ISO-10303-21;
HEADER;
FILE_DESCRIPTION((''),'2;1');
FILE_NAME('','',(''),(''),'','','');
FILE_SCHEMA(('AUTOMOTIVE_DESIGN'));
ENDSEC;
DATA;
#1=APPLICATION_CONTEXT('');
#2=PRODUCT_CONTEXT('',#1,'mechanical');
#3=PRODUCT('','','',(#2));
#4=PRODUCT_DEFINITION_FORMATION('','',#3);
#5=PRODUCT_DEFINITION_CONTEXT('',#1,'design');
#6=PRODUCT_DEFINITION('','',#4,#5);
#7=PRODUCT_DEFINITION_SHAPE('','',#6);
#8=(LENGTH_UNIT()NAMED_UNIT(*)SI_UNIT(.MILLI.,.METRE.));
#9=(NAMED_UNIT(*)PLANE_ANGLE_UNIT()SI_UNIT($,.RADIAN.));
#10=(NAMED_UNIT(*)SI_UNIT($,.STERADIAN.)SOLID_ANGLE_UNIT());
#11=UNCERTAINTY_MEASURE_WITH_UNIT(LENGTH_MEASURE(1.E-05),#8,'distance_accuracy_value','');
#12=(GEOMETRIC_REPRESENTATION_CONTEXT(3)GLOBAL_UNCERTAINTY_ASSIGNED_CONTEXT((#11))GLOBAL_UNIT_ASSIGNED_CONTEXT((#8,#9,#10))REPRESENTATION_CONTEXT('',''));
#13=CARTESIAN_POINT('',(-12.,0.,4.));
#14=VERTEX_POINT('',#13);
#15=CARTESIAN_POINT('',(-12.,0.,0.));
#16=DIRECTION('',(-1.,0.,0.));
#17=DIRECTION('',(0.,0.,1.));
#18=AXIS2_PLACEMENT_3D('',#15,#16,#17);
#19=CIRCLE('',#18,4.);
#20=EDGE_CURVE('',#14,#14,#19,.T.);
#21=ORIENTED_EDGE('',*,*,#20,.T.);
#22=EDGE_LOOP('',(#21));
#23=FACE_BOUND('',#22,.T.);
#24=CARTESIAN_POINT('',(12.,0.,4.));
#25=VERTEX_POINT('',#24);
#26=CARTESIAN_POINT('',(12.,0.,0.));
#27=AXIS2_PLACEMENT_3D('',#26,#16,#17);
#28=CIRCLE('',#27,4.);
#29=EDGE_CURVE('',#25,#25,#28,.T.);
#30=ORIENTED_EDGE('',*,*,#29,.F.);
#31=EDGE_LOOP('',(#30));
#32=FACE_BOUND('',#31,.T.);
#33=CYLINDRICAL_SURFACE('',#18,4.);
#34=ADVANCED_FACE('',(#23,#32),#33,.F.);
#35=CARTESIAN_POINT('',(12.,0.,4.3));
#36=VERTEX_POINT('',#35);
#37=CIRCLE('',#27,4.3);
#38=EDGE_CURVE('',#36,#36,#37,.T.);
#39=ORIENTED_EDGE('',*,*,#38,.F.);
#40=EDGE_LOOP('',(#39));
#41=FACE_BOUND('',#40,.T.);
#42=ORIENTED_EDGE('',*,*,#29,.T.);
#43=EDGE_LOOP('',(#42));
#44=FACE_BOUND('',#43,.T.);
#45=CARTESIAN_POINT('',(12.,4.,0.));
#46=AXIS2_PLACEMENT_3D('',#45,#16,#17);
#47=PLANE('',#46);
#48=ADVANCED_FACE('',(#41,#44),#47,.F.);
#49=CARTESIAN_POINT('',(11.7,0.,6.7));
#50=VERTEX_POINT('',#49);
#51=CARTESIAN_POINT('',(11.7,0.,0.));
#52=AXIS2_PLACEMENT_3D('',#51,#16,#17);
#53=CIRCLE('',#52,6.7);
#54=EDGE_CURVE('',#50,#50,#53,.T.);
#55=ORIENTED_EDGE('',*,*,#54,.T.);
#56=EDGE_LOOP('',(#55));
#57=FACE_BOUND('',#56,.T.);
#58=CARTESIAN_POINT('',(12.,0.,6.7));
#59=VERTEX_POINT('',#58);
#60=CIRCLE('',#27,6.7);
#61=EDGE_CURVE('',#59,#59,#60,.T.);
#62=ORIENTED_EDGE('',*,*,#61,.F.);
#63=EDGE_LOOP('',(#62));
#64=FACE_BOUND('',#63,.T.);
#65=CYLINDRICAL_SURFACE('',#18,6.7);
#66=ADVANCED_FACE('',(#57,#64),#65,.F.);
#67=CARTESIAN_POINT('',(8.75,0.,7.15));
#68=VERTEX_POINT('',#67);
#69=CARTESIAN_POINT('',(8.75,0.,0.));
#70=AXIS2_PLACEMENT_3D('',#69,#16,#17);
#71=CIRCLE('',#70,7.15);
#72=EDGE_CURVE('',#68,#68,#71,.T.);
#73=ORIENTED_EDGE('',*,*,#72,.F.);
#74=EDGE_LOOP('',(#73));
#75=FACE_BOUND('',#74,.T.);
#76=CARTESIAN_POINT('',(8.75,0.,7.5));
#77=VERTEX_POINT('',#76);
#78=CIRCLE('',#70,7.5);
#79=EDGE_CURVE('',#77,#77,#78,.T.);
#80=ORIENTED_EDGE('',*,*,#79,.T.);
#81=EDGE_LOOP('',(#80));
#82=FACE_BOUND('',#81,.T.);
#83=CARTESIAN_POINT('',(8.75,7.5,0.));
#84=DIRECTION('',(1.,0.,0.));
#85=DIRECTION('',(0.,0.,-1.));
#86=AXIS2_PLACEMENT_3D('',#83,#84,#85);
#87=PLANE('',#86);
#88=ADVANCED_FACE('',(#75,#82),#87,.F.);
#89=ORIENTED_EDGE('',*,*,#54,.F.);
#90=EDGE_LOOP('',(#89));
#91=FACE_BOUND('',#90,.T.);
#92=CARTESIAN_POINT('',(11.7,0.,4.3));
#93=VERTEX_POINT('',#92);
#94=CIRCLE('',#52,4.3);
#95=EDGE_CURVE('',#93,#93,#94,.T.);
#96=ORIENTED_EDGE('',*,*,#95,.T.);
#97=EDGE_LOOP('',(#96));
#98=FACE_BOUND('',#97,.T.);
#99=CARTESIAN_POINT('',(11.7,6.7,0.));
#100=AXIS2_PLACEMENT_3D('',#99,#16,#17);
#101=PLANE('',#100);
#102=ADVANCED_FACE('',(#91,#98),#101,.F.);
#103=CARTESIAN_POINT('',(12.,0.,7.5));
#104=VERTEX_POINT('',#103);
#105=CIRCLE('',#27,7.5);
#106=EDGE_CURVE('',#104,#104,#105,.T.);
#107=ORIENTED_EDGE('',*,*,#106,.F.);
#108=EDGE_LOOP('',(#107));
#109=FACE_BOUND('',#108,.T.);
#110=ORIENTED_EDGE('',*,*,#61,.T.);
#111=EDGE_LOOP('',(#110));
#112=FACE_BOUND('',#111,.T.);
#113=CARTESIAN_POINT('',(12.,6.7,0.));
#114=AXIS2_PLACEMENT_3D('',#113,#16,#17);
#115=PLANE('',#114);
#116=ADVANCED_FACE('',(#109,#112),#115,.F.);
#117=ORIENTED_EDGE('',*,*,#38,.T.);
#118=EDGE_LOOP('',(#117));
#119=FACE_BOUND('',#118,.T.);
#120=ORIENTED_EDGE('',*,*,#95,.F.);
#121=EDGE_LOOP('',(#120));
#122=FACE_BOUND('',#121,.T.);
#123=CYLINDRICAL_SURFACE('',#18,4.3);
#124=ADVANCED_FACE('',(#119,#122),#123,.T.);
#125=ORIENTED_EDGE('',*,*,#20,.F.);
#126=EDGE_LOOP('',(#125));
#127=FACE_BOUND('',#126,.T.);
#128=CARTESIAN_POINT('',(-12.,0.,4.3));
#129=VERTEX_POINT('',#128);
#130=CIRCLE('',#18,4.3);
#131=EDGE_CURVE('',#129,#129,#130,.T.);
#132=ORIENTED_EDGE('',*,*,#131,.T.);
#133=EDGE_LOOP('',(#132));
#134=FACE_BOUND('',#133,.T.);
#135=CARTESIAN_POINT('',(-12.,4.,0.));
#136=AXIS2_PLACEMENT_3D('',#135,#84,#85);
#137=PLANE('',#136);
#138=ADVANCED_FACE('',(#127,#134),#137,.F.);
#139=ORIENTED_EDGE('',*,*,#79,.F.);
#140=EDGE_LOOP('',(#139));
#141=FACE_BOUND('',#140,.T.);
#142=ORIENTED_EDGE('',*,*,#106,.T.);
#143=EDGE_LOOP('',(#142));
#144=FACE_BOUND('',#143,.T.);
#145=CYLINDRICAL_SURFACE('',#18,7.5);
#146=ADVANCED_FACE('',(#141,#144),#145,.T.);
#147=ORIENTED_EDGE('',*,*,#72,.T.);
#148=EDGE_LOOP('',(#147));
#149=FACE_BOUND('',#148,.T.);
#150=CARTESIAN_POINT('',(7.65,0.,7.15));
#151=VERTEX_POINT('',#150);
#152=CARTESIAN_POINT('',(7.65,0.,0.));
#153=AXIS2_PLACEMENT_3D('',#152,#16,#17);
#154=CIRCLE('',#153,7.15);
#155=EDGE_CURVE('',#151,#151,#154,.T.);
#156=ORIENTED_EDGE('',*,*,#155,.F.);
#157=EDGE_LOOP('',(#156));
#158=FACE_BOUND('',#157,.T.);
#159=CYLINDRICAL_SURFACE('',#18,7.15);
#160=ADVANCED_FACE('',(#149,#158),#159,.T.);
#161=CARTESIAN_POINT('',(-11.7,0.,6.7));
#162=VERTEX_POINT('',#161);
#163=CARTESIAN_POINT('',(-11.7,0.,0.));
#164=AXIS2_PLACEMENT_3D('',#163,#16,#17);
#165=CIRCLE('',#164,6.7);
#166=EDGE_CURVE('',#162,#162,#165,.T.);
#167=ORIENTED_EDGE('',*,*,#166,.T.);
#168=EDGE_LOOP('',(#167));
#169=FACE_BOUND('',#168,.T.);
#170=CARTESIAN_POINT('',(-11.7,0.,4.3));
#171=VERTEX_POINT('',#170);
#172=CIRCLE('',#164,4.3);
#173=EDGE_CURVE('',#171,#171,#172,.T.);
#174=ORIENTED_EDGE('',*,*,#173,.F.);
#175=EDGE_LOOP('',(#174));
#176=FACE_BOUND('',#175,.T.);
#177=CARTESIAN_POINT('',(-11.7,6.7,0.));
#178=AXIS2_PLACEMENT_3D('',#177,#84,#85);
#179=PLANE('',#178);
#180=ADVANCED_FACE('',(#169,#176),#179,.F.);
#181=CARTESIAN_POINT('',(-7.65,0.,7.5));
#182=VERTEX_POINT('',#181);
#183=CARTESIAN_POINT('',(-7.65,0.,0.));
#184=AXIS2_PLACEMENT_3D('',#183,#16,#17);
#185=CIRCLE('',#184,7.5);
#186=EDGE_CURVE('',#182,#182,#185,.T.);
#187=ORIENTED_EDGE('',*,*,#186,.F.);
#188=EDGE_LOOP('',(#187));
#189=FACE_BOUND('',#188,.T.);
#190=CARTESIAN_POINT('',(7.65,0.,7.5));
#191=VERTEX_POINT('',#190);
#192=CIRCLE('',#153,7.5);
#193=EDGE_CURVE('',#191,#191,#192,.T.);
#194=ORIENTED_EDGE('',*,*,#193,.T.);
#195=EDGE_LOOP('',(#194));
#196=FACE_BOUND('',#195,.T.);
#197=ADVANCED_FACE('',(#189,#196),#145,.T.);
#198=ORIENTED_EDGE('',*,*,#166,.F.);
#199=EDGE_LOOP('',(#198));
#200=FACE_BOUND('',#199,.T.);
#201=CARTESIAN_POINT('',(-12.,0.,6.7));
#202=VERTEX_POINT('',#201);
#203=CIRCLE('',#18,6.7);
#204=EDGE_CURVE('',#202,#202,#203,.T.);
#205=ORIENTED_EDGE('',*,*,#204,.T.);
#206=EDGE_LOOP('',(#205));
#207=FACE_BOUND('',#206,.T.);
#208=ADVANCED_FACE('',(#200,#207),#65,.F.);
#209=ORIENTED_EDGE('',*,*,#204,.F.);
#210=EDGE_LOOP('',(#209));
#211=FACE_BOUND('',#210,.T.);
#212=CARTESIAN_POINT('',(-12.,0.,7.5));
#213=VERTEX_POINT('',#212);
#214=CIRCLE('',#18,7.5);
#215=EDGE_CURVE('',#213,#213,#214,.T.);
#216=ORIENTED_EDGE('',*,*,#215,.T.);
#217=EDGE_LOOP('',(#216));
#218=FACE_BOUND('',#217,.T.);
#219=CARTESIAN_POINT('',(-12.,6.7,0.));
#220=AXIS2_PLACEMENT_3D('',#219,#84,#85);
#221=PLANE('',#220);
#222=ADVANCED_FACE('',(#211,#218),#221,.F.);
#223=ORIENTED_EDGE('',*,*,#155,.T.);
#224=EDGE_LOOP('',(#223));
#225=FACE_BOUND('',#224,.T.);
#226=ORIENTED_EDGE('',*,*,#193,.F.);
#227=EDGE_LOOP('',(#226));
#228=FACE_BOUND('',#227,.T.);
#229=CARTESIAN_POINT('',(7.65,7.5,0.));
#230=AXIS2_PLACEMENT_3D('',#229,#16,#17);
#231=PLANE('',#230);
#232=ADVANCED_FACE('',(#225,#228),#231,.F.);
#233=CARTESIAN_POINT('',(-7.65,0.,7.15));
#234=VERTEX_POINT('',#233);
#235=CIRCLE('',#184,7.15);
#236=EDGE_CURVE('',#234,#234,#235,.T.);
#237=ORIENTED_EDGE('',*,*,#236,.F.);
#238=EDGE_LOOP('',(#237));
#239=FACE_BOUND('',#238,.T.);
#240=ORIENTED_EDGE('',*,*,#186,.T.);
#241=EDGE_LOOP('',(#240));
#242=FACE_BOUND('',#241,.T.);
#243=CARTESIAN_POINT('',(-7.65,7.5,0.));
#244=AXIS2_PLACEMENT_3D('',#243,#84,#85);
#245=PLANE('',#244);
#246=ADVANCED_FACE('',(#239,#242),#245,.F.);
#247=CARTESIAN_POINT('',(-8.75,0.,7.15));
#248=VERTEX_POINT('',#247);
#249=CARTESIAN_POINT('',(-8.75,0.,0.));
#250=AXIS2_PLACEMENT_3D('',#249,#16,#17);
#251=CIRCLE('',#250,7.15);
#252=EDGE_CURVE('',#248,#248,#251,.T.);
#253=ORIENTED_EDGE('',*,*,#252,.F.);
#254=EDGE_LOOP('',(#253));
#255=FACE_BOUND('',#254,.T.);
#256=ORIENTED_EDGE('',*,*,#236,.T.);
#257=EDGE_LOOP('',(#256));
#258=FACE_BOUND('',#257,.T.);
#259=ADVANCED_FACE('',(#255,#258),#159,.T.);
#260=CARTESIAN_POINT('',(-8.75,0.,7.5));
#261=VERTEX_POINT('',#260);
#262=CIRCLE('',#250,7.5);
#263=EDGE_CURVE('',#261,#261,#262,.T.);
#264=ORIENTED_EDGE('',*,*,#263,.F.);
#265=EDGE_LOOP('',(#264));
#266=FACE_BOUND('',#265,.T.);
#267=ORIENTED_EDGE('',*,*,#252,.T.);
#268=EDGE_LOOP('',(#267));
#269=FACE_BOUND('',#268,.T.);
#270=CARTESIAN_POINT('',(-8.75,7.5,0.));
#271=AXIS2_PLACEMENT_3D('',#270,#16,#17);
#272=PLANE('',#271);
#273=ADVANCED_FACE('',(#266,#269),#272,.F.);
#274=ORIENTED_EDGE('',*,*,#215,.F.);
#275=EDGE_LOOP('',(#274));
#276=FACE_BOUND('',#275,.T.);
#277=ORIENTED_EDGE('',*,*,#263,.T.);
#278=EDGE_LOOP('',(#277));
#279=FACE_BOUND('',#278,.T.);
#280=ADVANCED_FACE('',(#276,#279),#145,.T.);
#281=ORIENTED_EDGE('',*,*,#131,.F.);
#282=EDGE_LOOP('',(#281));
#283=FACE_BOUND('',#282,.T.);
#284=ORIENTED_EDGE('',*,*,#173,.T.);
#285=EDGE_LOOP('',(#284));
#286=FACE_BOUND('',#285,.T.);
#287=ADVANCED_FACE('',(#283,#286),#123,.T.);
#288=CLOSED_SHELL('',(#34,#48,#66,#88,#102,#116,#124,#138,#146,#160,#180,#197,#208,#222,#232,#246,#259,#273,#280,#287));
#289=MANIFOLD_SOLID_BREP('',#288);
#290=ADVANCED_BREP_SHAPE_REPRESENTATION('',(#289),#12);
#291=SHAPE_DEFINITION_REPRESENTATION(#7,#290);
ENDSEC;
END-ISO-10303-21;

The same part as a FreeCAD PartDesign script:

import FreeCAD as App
import Part
import Sketcher
Q = App.Units.Quantity

doc = App.newDocument("Part")
body = doc.addObject("PartDesign::Body", "Body")

sketch1 = body.newObject("Sketcher::SketchObject", "Sketch")
sketch1.AttachmentSupport = (doc.getObject("XY_Plane"), [""])
sketch1.MapMode = "FlatFace"
sketch1.addGeometry([
    Part.LineSegment(App.Vector(-12, 4, 0), App.Vector(12, 4, 0)),
    Part.LineSegment(App.Vector(12, 4, 0), App.Vector(12, 4.3, 0)),
    Part.LineSegment(App.Vector(12, 4.3, 0), App.Vector(11.7, 4.3, 0)),
    Part.LineSegment(App.Vector(11.7, 4.3, 0), App.Vector(11.7, 6.7, 0)),
    Part.LineSegment(App.Vector(11.7, 6.7, 0), App.Vector(12, 6.7, 0)),
    Part.LineSegment(App.Vector(12, 6.7, 0), App.Vector(12, 7.5, 0)),
    Part.LineSegment(App.Vector(12, 7.5, 0), App.Vector(8.75, 7.5, 0)),
    Part.LineSegment(App.Vector(8.75, 7.5, 0), App.Vector(8.75, 7.15, 0)),
    Part.LineSegment(App.Vector(8.75, 7.15, 0), App.Vector(7.65, 7.15, 0)),
    Part.LineSegment(App.Vector(7.65, 7.15, 0), App.Vector(7.65, 7.5, 0)),
    Part.LineSegment(App.Vector(7.65, 7.5, 0), App.Vector(-7.65, 7.5, 0)),
    Part.LineSegment(App.Vector(-7.65, 7.5, 0), App.Vector(-7.65, 7.15, 0)),
    Part.LineSegment(App.Vector(-7.65, 7.15, 0), App.Vector(-8.75, 7.15, 0)),
    Part.LineSegment(App.Vector(-8.75, 7.15, 0), App.Vector(-8.75, 7.5, 0)),
    Part.LineSegment(App.Vector(-8.75, 7.5, 0), App.Vector(-12, 7.5, 0)),
    Part.LineSegment(App.Vector(-12, 7.5, 0), App.Vector(-12, 6.7, 0)),
    Part.LineSegment(App.Vector(-12, 6.7, 0), App.Vector(-11.7, 6.7, 0)),
    Part.LineSegment(App.Vector(-11.7, 6.7, 0), App.Vector(-11.7, 4.3, 0)),
    Part.LineSegment(App.Vector(-11.7, 4.3, 0), App.Vector(-12, 4.3, 0)),
    Part.LineSegment(App.Vector(-12, 4.3, 0), App.Vector(-12, 4, 0)),
], False)
sketch1.addConstraint([
    Sketcher.Constraint("Coincident", 0, 2, 1, 1),
    Sketcher.Constraint("Coincident", 1, 2, 2, 1),
    Sketcher.Constraint("Coincident", 2, 2, 3, 1),
    Sketcher.Constraint("Coincident", 3, 2, 4, 1),
    Sketcher.Constraint("Coincident", 4, 2, 5, 1),
    Sketcher.Constraint("Coincident", 5, 2, 6, 1),
    Sketcher.Constraint("Coincident", 6, 2, 7, 1),
    Sketcher.Constraint("Coincident", 7, 2, 8, 1),
    Sketcher.Constraint("Coincident", 8, 2, 9, 1),
    Sketcher.Constraint("Coincident", 9, 2, 10, 1),
    Sketcher.Constraint("Coincident", 10, 2, 11, 1),
    Sketcher.Constraint("Coincident", 11, 2, 12, 1),
    Sketcher.Constraint("Coincident", 12, 2, 13, 1),
    Sketcher.Constraint("Coincident", 13, 2, 14, 1),
    Sketcher.Constraint("Coincident", 14, 2, 15, 1),
    Sketcher.Constraint("Coincident", 15, 2, 16, 1),
    Sketcher.Constraint("Coincident", 16, 2, 17, 1),
    Sketcher.Constraint("Coincident", 17, 2, 18, 1),
    Sketcher.Constraint("Coincident", 18, 2, 19, 1),
    Sketcher.Constraint("Coincident", 19, 2, 0, 1),
    Sketcher.Constraint("Horizontal", 0),
    Sketcher.Constraint("Vertical", 1),
    Sketcher.Constraint("Horizontal", 2),
    Sketcher.Constraint("Vertical", 3),
    Sketcher.Constraint("Horizontal", 4),
    Sketcher.Constraint("Vertical", 5),
    Sketcher.Constraint("Horizontal", 6),
    Sketcher.Constraint("Vertical", 7),
    Sketcher.Constraint("Horizontal", 8),
    Sketcher.Constraint("Vertical", 9),
    Sketcher.Constraint("Horizontal", 10),
    Sketcher.Constraint("Vertical", 11),
    Sketcher.Constraint("Horizontal", 12),
    Sketcher.Constraint("Vertical", 13),
    Sketcher.Constraint("Horizontal", 14),
    Sketcher.Constraint("Vertical", 15),
    Sketcher.Constraint("Horizontal", 16),
    Sketcher.Constraint("Vertical", 17),
    Sketcher.Constraint("Horizontal", 18),
    Sketcher.Constraint("Vertical", 19),
    Sketcher.Constraint("Symmetric", 8, 2, 11, 2, -2),
    Sketcher.Constraint("Symmetric", 6, 2, 13, 2, -2),
    Sketcher.Constraint("Symmetric", 4, 2, 15, 2, -2),
    Sketcher.Constraint("Symmetric", 2, 2, 17, 2, -2),
    Sketcher.Constraint("Horizontal", 6, 2, 9, 2),
    Sketcher.Constraint("Vertical", 1, 2, 4, 2),
    Sketcher.Constraint("Vertical", 15, 2, 18, 2),
    Sketcher.Constraint("Equal", 18, 1),
    Sketcher.Constraint("DistanceX", 0, 1, 0, 2, Q("24 mm")),
    Sketcher.Constraint("DistanceX", 2, 2, 2, 1, Q("0.3 mm")),
    Sketcher.Constraint("DistanceX", 8, 2, 8, 1, Q("1.1 mm")),
    Sketcher.Constraint("DistanceX", 10, 2, 10, 1, Q("15.3 mm")),
    Sketcher.Constraint("DistanceY", 3, 1, 3, 2, Q("2.4 mm")),
    Sketcher.Constraint("DistanceY", 5, 1, 5, 2, Q("0.8 mm")),
    Sketcher.Constraint("DistanceY", -1, 1, 0, 2, Q("4 mm")),
    Sketcher.Constraint("DistanceY", 7, 2, 7, 1, Q("0.35 mm")),
])
revolution = body.newObject("PartDesign::Revolution", "Revolution")
revolution.Profile = sketch1
revolution.ReferenceAxis = (sketch1, ["H_Axis"])
revolution.Angle = 360

doc.recompute()
